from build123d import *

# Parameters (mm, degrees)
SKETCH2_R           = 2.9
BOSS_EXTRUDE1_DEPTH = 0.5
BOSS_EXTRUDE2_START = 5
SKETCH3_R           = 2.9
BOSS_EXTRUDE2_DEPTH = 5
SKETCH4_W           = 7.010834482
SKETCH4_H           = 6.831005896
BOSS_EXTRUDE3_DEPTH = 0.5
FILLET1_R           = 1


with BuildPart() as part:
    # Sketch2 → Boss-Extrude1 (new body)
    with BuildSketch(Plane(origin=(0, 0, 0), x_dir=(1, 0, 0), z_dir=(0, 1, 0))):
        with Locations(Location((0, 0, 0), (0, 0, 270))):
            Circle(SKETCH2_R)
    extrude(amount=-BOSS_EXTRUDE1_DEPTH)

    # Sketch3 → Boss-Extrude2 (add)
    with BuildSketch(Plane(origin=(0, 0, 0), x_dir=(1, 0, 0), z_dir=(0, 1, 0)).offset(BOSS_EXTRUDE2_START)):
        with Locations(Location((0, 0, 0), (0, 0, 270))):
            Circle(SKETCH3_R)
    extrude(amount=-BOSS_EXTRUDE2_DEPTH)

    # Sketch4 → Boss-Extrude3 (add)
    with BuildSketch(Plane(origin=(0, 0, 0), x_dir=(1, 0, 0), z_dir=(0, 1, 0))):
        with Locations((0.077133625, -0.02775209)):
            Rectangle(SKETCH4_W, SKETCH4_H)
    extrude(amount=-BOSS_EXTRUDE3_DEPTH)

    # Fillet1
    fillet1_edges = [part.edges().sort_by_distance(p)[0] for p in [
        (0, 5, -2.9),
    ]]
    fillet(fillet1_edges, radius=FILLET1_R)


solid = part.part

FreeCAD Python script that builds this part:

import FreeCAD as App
import Part
import Sketcher

V = App.Vector
Q = App.Units.Quantity


def edges_at(feature, points):
    """Names of the edges that pass closest to the given points."""
    edges = feature.Shape.Edges
    near = lambda p: min(range(len(edges)), key=lambda i: edges[i].distToShape(Part.Vertex(*p))[0])
    return sorted({f"Edge{near(p) + 1}" for p in points})


def add_polygon(sketch, points):
    """Adds a closed chain of lines whose ends are joined by coincident constraints."""
    first, n = sketch.GeometryCount, len(points)
    for a, b in zip(points, points[1:] + points[:1]):
        sketch.addGeometry(Part.LineSegment(App.Vector(*a, 0), App.Vector(*b, 0)), False)
    for i in range(n):
        sketch.addConstraint(Sketcher.Constraint("Coincident", first + i, 2, first + (i + 1) % n, 1))

doc = App.newDocument("Part")
body = doc.addObject("PartDesign::Body", "Body")

# Sketch on XZ plane
sketch1 = body.newObject("Sketcher::SketchObject", "Sketch")
sketch1.AttachmentSupport = (doc.getObject("XZ_Plane"), [""])
sketch1.MapMode = "FlatFace"
sketch1.addGeometry(Part.Circle(V(0, 0, 0), V(0, 0, 1), 2.9), False)
sketch1.addConstraint(Sketcher.Constraint("Coincident", 0, 3, -1, 1))
sketch1.addConstraint(Sketcher.Constraint("Diameter", 0, Q("5.8 mm")))
pad1 = body.newObject("PartDesign::Pad", "Pad")
pad1.Profile = sketch1
pad1.Length = 0.5

# Sketch on XZ plane
sketch2 = body.newObject("Sketcher::SketchObject", "Sketch001")
sketch2.AttachmentSupport = (doc.getObject("XZ_Plane"), [""])
sketch2.MapMode = "FlatFace"
sketch2.AttachmentOffset = App.Placement(V(0, 0, -5), App.Rotation())
sketch2.addGeometry(Part.Circle(V(0, 0, 0), V(0, 0, 1), 2.9), False)
sketch2.addConstraint(Sketcher.Constraint("Coincident", 0, 3, -1, 1))
sketch2.addConstraint(Sketcher.Constraint("Diameter", 0, Q("5.8 mm")))
pad2 = body.newObject("PartDesign::Pad", "Pad001")
pad2.Profile = sketch2
pad2.Length = 5

# Sketch on XZ plane
sketch3 = body.newObject("Sketcher::SketchObject", "Sketch002")
sketch3.AttachmentSupport = (doc.getObject("XZ_Plane"), [""])
sketch3.MapMode = "FlatFace"
add_polygon(sketch3, [(-3, -3), (-3, 3), (4, 3), (4, -3)])  # lines 0-3
sketch3.addConstraint(Sketcher.Constraint("Vertical", 0))
sketch3.addConstraint(Sketcher.Constraint("Horizontal", 1))
sketch3.addConstraint(Sketcher.Constraint("Vertical", 2))
sketch3.addConstraint(Sketcher.Constraint("Horizontal", 3))
sketch3.addConstraint(Sketcher.Constraint("DistanceX", 1, 1, 1, 2, Q("7.010834 mm")))
sketch3.addConstraint(Sketcher.Constraint("DistanceY", 0, 1, 0, 2, Q("6.831006 mm")))
sketch3.addConstraint(Sketcher.Constraint("DistanceX", -1, 1, 1, 2, Q("3.582551 mm")))
sketch3.addConstraint(Sketcher.Constraint("DistanceY", 2, 2, -1, 1, Q("3.387751 mm")))
pad3 = body.newObject("PartDesign::Pad", "Pad002")
pad3.Profile = sketch3
pad3.Length = 0.5
doc.recompute()

fillet = body.newObject("PartDesign::Fillet", "Fillet")
fillet.Base = (pad3, edges_at(pad3, [(0, 5, -2.9)]))
fillet.Radius = 1

doc.recompute()
